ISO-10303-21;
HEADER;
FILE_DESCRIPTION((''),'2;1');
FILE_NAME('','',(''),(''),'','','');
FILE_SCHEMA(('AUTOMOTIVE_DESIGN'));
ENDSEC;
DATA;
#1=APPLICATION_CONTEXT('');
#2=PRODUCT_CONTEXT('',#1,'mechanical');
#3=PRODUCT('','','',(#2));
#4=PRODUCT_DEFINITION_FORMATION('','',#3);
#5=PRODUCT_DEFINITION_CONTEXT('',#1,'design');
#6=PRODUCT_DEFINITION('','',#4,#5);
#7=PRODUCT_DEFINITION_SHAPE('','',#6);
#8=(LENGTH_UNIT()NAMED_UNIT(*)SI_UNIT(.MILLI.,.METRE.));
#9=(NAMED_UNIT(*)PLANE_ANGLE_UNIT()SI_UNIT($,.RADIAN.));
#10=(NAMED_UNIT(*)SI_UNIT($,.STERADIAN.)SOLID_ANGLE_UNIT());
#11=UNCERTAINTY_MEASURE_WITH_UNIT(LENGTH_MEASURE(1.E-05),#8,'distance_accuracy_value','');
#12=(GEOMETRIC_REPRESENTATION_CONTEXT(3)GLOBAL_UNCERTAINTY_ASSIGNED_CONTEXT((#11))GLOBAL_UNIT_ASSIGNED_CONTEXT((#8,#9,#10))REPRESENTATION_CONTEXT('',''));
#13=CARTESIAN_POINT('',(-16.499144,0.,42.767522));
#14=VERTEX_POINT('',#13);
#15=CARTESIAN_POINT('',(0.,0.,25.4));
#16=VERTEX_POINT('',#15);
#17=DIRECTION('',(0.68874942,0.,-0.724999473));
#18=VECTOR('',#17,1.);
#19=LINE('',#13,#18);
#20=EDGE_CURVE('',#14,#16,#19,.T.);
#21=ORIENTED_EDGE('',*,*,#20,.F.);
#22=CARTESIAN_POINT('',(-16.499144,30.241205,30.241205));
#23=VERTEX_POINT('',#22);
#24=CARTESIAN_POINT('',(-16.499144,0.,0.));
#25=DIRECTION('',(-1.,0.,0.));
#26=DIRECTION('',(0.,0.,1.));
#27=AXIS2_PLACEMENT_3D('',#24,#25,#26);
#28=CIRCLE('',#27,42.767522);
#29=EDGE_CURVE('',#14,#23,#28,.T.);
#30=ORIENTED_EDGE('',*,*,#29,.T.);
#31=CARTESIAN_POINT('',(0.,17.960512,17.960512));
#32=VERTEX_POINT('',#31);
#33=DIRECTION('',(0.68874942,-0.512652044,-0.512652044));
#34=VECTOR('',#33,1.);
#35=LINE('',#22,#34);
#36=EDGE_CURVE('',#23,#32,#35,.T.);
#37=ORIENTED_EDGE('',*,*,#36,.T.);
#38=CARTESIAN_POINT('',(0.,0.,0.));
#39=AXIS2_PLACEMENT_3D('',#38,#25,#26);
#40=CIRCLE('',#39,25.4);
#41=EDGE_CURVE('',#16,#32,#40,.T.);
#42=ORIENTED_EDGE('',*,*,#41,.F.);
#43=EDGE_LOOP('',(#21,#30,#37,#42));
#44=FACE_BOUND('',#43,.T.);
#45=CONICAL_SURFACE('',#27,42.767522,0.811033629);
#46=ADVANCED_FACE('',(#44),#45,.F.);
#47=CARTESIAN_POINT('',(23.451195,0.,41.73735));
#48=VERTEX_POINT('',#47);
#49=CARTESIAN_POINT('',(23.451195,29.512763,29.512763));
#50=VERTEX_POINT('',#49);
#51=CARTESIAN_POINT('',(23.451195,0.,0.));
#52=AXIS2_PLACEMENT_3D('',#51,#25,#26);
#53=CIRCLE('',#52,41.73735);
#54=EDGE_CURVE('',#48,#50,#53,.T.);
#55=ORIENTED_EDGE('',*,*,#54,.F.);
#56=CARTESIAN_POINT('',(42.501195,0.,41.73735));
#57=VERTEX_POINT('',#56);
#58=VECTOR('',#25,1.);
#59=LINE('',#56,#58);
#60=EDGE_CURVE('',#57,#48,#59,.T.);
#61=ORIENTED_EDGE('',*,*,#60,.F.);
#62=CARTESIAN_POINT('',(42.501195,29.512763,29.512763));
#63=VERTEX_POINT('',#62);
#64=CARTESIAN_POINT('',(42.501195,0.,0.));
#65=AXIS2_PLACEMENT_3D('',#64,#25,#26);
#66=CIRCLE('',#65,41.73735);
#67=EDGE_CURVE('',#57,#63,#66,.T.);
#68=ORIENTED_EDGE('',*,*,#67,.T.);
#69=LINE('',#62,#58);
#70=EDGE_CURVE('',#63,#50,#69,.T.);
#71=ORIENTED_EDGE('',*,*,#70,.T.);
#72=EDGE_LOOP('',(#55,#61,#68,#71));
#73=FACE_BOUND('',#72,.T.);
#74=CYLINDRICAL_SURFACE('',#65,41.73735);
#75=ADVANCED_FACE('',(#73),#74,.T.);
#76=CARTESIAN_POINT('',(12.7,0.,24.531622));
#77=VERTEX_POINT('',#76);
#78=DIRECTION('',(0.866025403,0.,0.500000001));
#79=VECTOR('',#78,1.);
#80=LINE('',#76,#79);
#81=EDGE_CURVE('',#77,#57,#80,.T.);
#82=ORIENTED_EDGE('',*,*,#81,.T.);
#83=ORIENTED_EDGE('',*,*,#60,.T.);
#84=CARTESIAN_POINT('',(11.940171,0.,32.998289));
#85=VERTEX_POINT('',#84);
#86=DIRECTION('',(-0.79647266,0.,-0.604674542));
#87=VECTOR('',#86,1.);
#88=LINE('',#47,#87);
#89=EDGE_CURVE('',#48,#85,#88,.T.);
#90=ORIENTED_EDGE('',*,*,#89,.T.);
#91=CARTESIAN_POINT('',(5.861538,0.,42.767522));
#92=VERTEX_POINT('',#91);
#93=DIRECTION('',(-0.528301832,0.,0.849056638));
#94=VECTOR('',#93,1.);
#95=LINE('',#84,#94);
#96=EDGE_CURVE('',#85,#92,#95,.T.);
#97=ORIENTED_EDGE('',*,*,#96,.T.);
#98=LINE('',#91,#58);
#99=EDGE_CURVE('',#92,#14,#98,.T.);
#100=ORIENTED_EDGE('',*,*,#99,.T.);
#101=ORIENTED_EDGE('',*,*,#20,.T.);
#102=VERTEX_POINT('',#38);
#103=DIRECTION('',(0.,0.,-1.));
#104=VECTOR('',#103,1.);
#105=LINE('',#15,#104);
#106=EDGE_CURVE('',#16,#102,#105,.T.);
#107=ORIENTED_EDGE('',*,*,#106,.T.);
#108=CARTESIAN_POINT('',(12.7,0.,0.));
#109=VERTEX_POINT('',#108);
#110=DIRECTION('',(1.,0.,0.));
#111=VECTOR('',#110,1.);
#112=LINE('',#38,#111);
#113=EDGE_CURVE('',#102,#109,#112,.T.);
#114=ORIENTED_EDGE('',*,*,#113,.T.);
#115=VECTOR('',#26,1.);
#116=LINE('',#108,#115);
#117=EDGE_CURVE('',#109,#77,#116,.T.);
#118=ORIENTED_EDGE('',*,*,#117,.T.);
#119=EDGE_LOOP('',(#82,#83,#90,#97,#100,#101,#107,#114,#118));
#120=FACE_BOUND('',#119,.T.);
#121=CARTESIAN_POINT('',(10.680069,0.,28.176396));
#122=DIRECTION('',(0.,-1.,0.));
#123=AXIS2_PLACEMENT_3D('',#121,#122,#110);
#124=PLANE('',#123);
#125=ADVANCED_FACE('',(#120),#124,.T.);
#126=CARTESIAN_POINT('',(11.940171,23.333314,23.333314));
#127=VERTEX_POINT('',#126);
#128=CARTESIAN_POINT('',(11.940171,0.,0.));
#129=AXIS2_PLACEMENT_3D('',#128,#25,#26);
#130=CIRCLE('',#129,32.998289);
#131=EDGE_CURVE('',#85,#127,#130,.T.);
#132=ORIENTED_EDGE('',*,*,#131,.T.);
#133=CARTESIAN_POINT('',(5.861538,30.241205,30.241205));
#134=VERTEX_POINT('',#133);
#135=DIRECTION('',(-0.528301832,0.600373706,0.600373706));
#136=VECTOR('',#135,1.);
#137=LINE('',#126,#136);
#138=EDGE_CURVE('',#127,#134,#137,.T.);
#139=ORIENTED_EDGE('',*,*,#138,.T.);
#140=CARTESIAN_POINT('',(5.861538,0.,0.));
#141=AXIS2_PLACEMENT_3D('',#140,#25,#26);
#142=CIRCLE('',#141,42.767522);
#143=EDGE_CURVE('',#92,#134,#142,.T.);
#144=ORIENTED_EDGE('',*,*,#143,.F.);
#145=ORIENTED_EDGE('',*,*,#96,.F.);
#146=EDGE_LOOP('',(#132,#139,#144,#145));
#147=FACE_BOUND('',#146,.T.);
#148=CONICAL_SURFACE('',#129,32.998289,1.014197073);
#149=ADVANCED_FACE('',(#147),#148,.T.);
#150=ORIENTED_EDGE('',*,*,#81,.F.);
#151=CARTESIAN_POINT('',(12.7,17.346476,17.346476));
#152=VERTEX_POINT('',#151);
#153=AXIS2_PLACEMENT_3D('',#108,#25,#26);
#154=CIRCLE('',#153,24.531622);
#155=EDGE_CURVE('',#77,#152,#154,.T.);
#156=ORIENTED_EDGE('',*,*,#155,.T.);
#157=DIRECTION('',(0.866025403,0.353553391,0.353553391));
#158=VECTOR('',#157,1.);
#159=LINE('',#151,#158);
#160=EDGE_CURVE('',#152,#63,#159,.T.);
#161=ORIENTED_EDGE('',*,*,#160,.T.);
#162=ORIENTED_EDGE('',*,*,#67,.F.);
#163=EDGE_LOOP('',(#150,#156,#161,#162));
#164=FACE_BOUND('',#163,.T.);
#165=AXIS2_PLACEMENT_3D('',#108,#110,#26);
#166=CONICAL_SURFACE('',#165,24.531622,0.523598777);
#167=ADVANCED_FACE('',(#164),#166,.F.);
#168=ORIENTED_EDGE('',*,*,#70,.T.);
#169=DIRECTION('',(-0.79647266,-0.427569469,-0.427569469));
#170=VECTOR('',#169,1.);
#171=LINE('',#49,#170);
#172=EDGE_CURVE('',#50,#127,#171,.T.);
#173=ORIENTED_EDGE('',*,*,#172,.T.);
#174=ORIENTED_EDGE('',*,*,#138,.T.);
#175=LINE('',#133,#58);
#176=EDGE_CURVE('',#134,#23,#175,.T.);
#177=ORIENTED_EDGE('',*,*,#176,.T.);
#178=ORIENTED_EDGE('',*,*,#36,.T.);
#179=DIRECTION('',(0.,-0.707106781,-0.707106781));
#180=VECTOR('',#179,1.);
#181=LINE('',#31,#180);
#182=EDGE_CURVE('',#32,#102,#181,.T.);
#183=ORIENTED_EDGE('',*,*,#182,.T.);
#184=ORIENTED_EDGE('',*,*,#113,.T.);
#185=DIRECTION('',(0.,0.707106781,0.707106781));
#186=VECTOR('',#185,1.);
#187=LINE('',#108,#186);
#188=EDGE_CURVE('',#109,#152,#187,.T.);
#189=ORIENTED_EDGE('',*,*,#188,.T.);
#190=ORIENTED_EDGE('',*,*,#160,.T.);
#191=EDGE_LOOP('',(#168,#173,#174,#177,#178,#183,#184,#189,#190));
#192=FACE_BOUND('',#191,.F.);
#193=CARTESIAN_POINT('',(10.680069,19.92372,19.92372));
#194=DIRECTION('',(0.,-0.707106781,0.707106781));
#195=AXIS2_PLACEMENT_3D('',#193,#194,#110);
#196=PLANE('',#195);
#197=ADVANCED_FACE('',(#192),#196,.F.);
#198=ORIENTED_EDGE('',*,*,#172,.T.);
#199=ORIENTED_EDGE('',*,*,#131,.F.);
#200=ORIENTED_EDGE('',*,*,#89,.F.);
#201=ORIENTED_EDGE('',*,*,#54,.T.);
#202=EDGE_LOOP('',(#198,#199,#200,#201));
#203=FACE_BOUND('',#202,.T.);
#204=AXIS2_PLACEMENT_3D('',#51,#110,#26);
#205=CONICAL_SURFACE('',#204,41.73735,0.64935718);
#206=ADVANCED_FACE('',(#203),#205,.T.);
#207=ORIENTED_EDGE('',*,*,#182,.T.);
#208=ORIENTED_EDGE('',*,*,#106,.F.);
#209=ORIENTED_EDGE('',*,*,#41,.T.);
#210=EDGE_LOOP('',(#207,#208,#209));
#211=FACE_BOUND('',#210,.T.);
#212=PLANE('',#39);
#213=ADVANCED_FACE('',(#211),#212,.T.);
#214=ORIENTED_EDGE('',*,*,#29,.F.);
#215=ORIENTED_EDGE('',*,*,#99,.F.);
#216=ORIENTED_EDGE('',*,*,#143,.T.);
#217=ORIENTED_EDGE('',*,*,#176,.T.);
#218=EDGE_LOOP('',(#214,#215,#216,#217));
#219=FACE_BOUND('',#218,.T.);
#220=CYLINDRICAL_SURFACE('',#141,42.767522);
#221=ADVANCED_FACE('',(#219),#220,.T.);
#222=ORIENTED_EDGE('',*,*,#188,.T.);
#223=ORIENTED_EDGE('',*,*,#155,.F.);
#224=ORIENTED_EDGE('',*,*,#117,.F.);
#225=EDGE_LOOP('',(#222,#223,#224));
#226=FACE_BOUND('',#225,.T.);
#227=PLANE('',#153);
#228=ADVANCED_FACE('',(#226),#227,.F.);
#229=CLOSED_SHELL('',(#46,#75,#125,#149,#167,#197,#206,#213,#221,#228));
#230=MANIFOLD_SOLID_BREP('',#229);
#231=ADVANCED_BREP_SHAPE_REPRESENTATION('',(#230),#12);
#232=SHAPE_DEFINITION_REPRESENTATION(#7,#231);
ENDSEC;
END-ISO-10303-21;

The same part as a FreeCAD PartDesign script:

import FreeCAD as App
import Part
import Sketcher
Q = App.Units.Quantity

doc = App.newDocument("Part")
body = doc.addObject("PartDesign::Body", "Body")

sketch1 = body.newObject("Sketcher::SketchObject", "Sketch")
sketch1.AttachmentSupport = (doc.getObject("XZ_Plane"), [""])
sketch1.MapMode = "FlatFace"
sketch1.addGeometry(Part.LineSegment(App.Vector(0, 25, 0), App.Vector(0, 0, 0)), False)
sketch1.addGeometry(Part.LineSegment(App.Vector(0, 0, 0), App.Vector(13, 0, 0)), False)
sketch1.addGeometry(Part.LineSegment(App.Vector(13, 0, 0), App.Vector(13, 25, 0)), False)
sketch1.addGeometry(Part.LineSegment(App.Vector(13, 25, 0), App.Vector(43, 42, 0)), False)
sketch1.addGeometry(Part.LineSegment(App.Vector(43, 42, 0), App.Vector(23, 42, 0)), False)
sketch1.addGeometry(Part.LineSegment(App.Vector(23, 42, 0), App.Vector(12, 33, 0)), False)
sketch1.addGeometry(Part.LineSegment(App.Vector(12, 33, 0), App.Vector(6, 43, 0)), False)
sketch1.addGeometry(Part.LineSegment(App.Vector(6, 43, 0), App.Vector(-16, 43, 0)), False)
sketch1.addGeometry(Part.LineSegment(App.Vector(-16, 43, 0), App.Vector(0, 25, 0)), False)
sketch1.addConstraint(Sketcher.Constraint("Coincident", 0, 2, 1, 1))
sketch1.addConstraint(Sketcher.Constraint("Coincident", 1, 2, 2, 1))
sketch1.addConstraint(Sketcher.Constraint("Coincident", 2, 2, 3, 1))
sketch1.addConstraint(Sketcher.Constraint("Coincident", 3, 2, 4, 1))
sketch1.addConstraint(Sketcher.Constraint("Coincident", 4, 2, 5, 1))
sketch1.addConstraint(Sketcher.Constraint("Coincident", 5, 2, 6, 1))
sketch1.addConstraint(Sketcher.Constraint("Coincident", 6, 2, 7, 1))
sketch1.addConstraint(Sketcher.Constraint("Coincident", 7, 2, 8, 1))
sketch1.addConstraint(Sketcher.Constraint("Coincident", 8, 2, 0, 1))
sketch1.addConstraint(Sketcher.Constraint("Vertical", 0))
sketch1.addConstraint(Sketcher.Constraint("Horizontal", 1))
sketch1.addConstraint(Sketcher.Constraint("Vertical", 2))
sketch1.addConstraint(Sketcher.Constraint("Horizontal", 4))
sketch1.addConstraint(Sketcher.Constraint("Horizontal", 7))
sketch1.addConstraint(Sketcher.Constraint("Coincident", 0, 2, -1, 1))
sketch1.addConstraint(Sketcher.Constraint("DistanceY", 0, 2, 0, 1, Q("1 in")))
sketch1.addConstraint(Sketcher.Constraint("DistanceX", 1, 1, 1, 2, Q("0.5 in")))
sketch1.addConstraint(Sketcher.Constraint("Angle", 3, Q("30 deg")))
sketch1.addConstraint(Sketcher.Constraint("DistanceX", 4, 2, 4, 1, Q("0.75 in")))
sketch1.addConstraint(Sketcher.Constraint("DistanceY", 2, 1, 2, 2, 24.531622))
sketch1.addConstraint(Sketcher.Constraint("DistanceY", 2, 2, 6, 2, 18.2359))
sketch1.addConstraint(Sketcher.Constraint("Distance", 8, 23.95522))
sketch1.addConstraint(Sketcher.Constraint("DistanceX", 7, 2, 7, 1, 22.360682))
sketch1.addConstraint(Sketcher.Constraint("DistanceY", -1, 1, 3, 2, 41.73735))
sketch1.addConstraint(Sketcher.Constraint("DistanceX", -1, 1, 5, 2, 11.940171))
sketch1.addConstraint(Sketcher.Constraint("DistanceY", -1, 1, 5, 2, 32.998289))
revolution = body.newObject("PartDesign::Revolution", "Revolution")
revolution.Profile = sketch1
revolution.ReferenceAxis = (sketch1, ["H_Axis"])
revolution.Angle = 45
revolution.Reversed = True

doc.recompute()
